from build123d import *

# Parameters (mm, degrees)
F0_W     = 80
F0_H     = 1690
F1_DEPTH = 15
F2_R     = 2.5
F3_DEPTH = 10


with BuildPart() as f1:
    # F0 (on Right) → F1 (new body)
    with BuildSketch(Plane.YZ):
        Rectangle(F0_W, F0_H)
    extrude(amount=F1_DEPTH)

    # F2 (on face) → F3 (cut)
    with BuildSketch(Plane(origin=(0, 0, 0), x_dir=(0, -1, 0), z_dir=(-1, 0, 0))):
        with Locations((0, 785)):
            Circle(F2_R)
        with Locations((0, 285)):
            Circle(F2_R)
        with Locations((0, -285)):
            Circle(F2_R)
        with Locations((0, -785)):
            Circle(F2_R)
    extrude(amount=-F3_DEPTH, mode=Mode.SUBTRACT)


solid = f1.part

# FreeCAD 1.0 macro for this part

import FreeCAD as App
import Part
import Sketcher


def add_polygon(sketch, points):
    """Adds a closed chain of lines whose ends are joined by coincident constraints."""
    first, n = sketch.GeometryCount, len(points)
    for a, b in zip(points, points[1:] + points[:1]):
        sketch.addGeometry(Part.LineSegment(App.Vector(*a, 0), App.Vector(*b, 0)), False)
    for i in range(n):
        sketch.addConstraint(Sketcher.Constraint("Coincident", first + i, 2, first + (i + 1) % n, 1))

doc = App.newDocument("Part")
body = doc.addObject("PartDesign::Body", "Body")

# Sketch on YZ plane
sketch1 = body.newObject("Sketcher::SketchObject", "Sketch")
sketch1.AttachmentSupport = (doc.getObject("YZ_Plane"), [""])
sketch1.MapMode = "FlatFace"
add_polygon(sketch1, [(-40, 845), (-40, -845), (40, -845), (40, 845)])  # lines 0-3
sketch1.addConstraint([
    Sketcher.Constraint("Vertical", 0),
    Sketcher.Constraint("Horizontal", 1),
    Sketcher.Constraint("Vertical", 2),
    Sketcher.Constraint("Horizontal", 3),
    Sketcher.Constraint("Symmetric", 0, 2, 2, 2, -1, 1),
    Sketcher.Constraint("DistanceX", 1, 1, 1, 2, 80.0),
    Sketcher.Constraint("DistanceY", 0, 2, 0, 1, 1690.0),
])
pad1 = body.newObject("PartDesign::Pad", "Pad")
pad1.Profile = sketch1
pad1.Length = 15

# Sketch on YZ plane
sketch2 = body.newObject("Sketcher::SketchObject", "Sketch001")
sketch2.AttachmentSupport = (doc.getObject("YZ_Plane"), [""])
sketch2.MapMode = "FlatFace"
sketch2.addGeometry([
    Part.Circle(App.Vector(0, 785, 0), App.Vector(0, 0, 1), 2.5),
    Part.Circle(App.Vector(0, 285, 0), App.Vector(0, 0, 1), 2.5),
    Part.Circle(App.Vector(0, -285, 0), App.Vector(0, 0, 1), 2.5),
    Part.Circle(App.Vector(0, -785, 0), App.Vector(0, 0, 1), 2.5),
], False)
sketch2.addConstraint([
    Sketcher.Constraint("Equal", 0, 1),
    Sketcher.Constraint("Equal", 1, 2),
    Sketcher.Constraint("Equal", 2, 3),
    Sketcher.Constraint("Symmetric", 1, 3, 2, 3, -1, 1),
    Sketcher.Constraint("Symmetric", 0, 3, 3, 3, -1, 1),
    Sketcher.Constraint("PointOnObject", 0, 3, -2),
    Sketcher.Constraint("PointOnObject", 1, 3, -2),
    Sketcher.Constraint("Diameter", 0, 5.0),
    Sketcher.Constraint("DistanceY", -1, 1, 0, 3, 785.0),
    Sketcher.Constraint("DistanceY", -1, 1, 1, 3, 285.0),
])
pocket1 = body.newObject("PartDesign::Pocket", "Pocket")
pocket1.Profile = sketch2
pocket1.Length = 10
pocket1.Reversed = True

doc.recompute()
